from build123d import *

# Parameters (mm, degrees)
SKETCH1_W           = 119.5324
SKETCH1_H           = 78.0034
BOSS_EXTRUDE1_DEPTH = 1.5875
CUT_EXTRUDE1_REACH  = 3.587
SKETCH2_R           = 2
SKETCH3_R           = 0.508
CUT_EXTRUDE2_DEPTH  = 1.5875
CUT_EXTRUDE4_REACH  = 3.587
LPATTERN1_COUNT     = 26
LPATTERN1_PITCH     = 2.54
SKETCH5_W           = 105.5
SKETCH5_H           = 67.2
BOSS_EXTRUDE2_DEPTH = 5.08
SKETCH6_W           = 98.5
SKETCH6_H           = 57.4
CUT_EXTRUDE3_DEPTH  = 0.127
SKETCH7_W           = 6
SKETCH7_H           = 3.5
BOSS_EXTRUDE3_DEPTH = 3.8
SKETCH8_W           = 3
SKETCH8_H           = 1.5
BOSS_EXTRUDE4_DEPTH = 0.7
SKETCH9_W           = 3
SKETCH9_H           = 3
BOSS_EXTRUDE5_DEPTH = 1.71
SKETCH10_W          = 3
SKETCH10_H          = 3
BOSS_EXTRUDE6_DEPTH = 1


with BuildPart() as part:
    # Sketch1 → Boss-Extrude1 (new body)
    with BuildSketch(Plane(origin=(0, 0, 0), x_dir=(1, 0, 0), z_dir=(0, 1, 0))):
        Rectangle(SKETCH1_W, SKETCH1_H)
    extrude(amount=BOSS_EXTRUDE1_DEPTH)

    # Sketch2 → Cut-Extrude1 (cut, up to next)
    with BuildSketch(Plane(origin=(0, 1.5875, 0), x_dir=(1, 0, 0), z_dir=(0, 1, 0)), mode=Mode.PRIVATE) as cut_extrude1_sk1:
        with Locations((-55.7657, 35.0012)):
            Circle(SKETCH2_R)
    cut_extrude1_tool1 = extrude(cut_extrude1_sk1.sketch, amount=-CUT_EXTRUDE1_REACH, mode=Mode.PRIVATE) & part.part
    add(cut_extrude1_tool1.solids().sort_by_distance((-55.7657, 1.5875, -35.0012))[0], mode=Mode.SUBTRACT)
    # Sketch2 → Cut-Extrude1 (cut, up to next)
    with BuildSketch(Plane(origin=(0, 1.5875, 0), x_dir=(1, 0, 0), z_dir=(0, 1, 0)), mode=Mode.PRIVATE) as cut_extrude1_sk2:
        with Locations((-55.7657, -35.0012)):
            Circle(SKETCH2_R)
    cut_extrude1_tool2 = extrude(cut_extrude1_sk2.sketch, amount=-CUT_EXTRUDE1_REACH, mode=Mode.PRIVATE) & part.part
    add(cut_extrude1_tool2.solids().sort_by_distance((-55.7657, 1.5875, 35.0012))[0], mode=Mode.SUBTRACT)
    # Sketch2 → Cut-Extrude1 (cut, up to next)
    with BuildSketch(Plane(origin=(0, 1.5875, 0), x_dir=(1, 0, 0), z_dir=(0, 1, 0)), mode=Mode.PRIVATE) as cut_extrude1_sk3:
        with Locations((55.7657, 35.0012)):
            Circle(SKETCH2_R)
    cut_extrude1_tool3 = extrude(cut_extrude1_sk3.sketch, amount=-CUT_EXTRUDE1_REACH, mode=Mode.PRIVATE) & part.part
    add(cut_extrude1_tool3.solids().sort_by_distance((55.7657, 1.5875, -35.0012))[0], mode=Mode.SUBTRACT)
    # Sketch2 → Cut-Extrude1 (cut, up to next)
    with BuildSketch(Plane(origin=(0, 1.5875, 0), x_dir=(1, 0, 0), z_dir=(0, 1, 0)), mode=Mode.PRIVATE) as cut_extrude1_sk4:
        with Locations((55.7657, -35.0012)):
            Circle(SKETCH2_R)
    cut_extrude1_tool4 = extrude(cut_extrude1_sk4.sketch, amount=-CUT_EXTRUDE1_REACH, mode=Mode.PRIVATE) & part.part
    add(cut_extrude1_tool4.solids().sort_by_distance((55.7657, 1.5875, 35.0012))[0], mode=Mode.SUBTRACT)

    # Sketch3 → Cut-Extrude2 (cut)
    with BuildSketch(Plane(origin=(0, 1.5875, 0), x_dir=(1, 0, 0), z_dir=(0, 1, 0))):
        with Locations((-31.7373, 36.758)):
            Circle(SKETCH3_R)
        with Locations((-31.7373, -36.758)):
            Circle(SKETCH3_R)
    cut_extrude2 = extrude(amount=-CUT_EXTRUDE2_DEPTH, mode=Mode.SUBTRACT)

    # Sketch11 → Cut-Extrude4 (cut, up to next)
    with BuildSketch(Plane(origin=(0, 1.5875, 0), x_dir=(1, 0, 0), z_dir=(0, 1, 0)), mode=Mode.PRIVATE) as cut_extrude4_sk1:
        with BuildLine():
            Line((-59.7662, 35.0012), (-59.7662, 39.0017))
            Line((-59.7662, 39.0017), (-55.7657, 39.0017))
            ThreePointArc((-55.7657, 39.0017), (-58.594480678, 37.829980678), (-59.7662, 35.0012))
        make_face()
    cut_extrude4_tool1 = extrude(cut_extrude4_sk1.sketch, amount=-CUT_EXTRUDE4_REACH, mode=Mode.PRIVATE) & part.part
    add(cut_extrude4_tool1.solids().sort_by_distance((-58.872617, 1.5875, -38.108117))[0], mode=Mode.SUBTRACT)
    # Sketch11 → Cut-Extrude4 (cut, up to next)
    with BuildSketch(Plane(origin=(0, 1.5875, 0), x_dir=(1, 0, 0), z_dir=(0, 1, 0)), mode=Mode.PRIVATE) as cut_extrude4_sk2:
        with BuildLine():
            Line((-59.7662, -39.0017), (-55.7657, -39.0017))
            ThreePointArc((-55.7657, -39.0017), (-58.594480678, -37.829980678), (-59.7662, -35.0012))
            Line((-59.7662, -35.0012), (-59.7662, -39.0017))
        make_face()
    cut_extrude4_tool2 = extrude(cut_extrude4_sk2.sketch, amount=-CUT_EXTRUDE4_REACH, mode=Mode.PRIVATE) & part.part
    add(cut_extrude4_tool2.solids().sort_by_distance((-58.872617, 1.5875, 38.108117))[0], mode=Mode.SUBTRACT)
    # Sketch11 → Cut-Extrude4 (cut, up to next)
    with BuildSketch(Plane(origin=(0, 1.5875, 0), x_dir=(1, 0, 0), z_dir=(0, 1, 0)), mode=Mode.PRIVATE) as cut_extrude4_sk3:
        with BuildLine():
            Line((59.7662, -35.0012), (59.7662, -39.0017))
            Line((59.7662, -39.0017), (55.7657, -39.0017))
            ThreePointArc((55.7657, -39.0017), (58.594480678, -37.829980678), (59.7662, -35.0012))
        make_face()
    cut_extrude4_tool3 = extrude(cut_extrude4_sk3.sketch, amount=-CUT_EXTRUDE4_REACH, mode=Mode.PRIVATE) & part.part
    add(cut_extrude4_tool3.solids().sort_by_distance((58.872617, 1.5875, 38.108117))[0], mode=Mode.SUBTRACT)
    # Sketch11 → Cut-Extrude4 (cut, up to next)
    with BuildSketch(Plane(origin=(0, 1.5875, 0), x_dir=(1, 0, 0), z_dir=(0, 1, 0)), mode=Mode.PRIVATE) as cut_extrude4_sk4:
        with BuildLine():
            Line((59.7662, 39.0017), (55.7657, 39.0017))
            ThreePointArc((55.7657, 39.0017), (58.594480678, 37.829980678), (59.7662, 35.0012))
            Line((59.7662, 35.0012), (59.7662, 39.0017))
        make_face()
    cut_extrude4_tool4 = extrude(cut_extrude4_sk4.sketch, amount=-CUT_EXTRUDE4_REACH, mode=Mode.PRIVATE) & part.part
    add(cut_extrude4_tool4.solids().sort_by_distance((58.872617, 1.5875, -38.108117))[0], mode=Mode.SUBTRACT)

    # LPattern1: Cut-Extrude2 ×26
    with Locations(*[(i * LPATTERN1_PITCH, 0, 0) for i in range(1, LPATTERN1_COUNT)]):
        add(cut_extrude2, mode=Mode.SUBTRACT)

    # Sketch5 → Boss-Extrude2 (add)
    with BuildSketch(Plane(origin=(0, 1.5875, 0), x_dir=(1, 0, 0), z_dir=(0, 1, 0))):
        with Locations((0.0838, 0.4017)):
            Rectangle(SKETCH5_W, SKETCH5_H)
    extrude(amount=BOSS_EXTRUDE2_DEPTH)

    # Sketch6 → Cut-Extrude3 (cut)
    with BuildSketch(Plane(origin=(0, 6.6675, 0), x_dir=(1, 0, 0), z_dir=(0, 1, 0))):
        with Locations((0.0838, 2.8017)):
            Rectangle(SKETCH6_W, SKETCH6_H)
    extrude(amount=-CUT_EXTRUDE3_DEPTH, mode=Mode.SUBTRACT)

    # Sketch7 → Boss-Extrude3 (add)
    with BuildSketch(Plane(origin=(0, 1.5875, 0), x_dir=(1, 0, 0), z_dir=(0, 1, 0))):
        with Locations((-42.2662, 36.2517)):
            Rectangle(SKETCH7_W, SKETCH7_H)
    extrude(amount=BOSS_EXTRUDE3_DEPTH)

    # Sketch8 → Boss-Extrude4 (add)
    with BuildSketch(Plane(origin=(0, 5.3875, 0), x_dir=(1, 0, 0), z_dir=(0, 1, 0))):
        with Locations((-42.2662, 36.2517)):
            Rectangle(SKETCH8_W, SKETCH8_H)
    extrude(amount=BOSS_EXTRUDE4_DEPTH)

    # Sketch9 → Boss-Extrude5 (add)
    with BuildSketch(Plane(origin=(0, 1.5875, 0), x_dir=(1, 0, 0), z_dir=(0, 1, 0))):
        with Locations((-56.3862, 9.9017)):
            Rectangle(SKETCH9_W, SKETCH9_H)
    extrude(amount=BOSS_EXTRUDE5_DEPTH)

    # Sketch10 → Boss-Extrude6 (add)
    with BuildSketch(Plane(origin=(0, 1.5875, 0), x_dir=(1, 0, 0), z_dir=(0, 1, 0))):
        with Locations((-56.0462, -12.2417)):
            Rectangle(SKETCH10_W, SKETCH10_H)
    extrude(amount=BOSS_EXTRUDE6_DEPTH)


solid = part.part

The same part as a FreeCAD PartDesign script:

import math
import FreeCAD as App
import Part
import Sketcher


def add_polygon(sketch, points):
    """Adds a closed chain of lines whose ends are joined by coincident constraints."""
    first, n = sketch.GeometryCount, len(points)
    for a, b in zip(points, points[1:] + points[:1]):
        sketch.addGeometry(Part.LineSegment(App.Vector(*a, 0), App.Vector(*b, 0)), False)
    for i in range(n):
        sketch.addConstraint(Sketcher.Constraint("Coincident", first + i, 2, first + (i + 1) % n, 1))

doc = App.newDocument("Part")
body = doc.addObject("PartDesign::Body", "Body")

# Sketch on XZ plane
sketch1 = body.newObject("Sketcher::SketchObject", "Sketch")
sketch1.AttachmentSupport = (doc.getObject("XZ_Plane"), [""])
sketch1.MapMode = "FlatFace"
add_polygon(sketch1, [(-60, -39), (-60, 39), (60, 39), (60, -39)])  # lines 0-3
sketch1.addConstraint([
    Sketcher.Constraint("Vertical", 0),
    Sketcher.Constraint("Horizontal", 1),
    Sketcher.Constraint("Vertical", 2),
    Sketcher.Constraint("Horizontal", 3),
    Sketcher.Constraint("Symmetric", 0, 2, 2, 2, -1, 1),
    Sketcher.Constraint("DistanceX", 1, 1, 1, 2, 119.5324),
    Sketcher.Constraint("DistanceY", 0, 1, 0, 2, 78.0034),
])
pad1 = body.newObject("PartDesign::Pad", "Pad")
pad1.Profile = sketch1
pad1.Length = 1.5875
pad1.Reversed = True

# Sketch on XZ plane
sketch2 = body.newObject("Sketcher::SketchObject", "Sketch001")
sketch2.AttachmentSupport = (doc.getObject("XZ_Plane"), [""])
sketch2.MapMode = "FlatFace"
sketch2.AttachmentOffset = App.Placement(App.Vector(0, 0, -1.5875), App.Rotation())
sketch2.addGeometry(Part.Circle(App.Vector(-55.8, -35, 0), App.Vector(0, 0, 1), 2), False)
sketch2.addConstraint([
    Sketcher.Constraint("Diameter", 0, 4.0),
    Sketcher.Constraint("DistanceX", 0, 3, -1, 1, 55.7657),
    Sketcher.Constraint("DistanceY", 0, 3, -1, 1, 35.0012),
])
pocket1 = body.newObject("PartDesign::Pocket", "Pocket")
pocket1.Profile = sketch2
pocket1.Type = "UpToFirst"
pocket1.Reversed = True

# Sketch on XZ plane
sketch3 = body.newObject("Sketcher::SketchObject", "Sketch002")
sketch3.AttachmentSupport = (doc.getObject("XZ_Plane"), [""])
sketch3.MapMode = "FlatFace"
sketch3.AttachmentOffset = App.Placement(App.Vector(0, 0, -1.5875), App.Rotation())
sketch3.addGeometry(Part.Circle(App.Vector(-55.8, 35, 0), App.Vector(0, 0, 1), 2), False)
sketch3.addConstraint([
    Sketcher.Constraint("Diameter", 0, 4.0),
    Sketcher.Constraint("DistanceX", 0, 3, -1, 1, 55.7657),
    Sketcher.Constraint("DistanceY", -1, 1, 0, 3, 35.0012),
])
pocket2 = body.newObject("PartDesign::Pocket", "Pocket001")
pocket2.Profile = sketch3
pocket2.Type = "UpToFirst"
pocket2.Reversed = True

# Sketch on XZ plane
sketch4 = body.newObject("Sketcher::SketchObject", "Sketch003")
sketch4.AttachmentSupport = (doc.getObject("XZ_Plane"), [""])
sketch4.MapMode = "FlatFace"
sketch4.AttachmentOffset = App.Placement(App.Vector(0, 0, -1.5875), App.Rotation())
sketch4.addGeometry(Part.Circle(App.Vector(55.8, -35, 0), App.Vector(0, 0, 1), 2), False)
sketch4.addConstraint([
    Sketcher.Constraint("Diameter", 0, 4.0),
    Sketcher.Constraint("DistanceX", -1, 1, 0, 3, 55.7657),
    Sketcher.Constraint("DistanceY", 0, 3, -1, 1, 35.0012),
])
pocket3 = body.newObject("PartDesign::Pocket", "Pocket002")
pocket3.Profile = sketch4
pocket3.Type = "UpToFirst"
pocket3.Reversed = True

# Sketch on XZ plane
sketch5 = body.newObject("Sketcher::SketchObject", "Sketch004")
sketch5.AttachmentSupport = (doc.getObject("XZ_Plane"), [""])
sketch5.MapMode = "FlatFace"
sketch5.AttachmentOffset = App.Placement(App.Vector(0, 0, -1.5875), App.Rotation())
sketch5.addGeometry(Part.Circle(App.Vector(55.8, 35, 0), App.Vector(0, 0, 1), 2), False)
sketch5.addConstraint([
    Sketcher.Constraint("Diameter", 0, 4.0),
    Sketcher.Constraint("DistanceX", -1, 1, 0, 3, 55.7657),
    Sketcher.Constraint("DistanceY", -1, 1, 0, 3, 35.0012),
])
pocket4 = body.newObject("PartDesign::Pocket", "Pocket003")
pocket4.Profile = sketch5
pocket4.Type = "UpToFirst"
pocket4.Reversed = True

# Sketch on XZ plane
sketch6 = body.newObject("Sketcher::SketchObject", "Sketch005")
sketch6.AttachmentSupport = (doc.getObject("XZ_Plane"), [""])
sketch6.MapMode = "FlatFace"
sketch6.AttachmentOffset = App.Placement(App.Vector(0, 0, -1.5875), App.Rotation())
sketch6.addGeometry([
    Part.Circle(App.Vector(-31.7, -36.8, 0), App.Vector(0, 0, 1), 0.5),
    Part.Circle(App.Vector(-31.7, 36.8, 0), App.Vector(0, 0, 1), 0.5),
], False)
sketch6.addConstraint([
    Sketcher.Constraint("Equal", 0, 1),
    Sketcher.Constraint("Symmetric", 0, 3, 1, 3, -1),
    Sketcher.Constraint("Diameter", 0, 1.016),
    Sketcher.Constraint("DistanceY", 0, 3, -1, 1, 36.758),
    Sketcher.Constraint("DistanceX", 0, 3, -1, 1, 31.7373),
])
pocket5 = body.newObject("PartDesign::Pocket", "Pocket004")
pocket5.Profile = sketch6
pocket5.Length = 1.5875
pocket5.Reversed = True

# Sketch on XZ plane
sketch7 = body.newObject("Sketcher::SketchObject", "Sketch006")
sketch7.AttachmentSupport = (doc.getObject("XZ_Plane"), [""])
sketch7.MapMode = "FlatFace"
sketch7.AttachmentOffset = App.Placement(App.Vector(0, 0, -1.5875), App.Rotation())
sketch7.addGeometry([
    Part.LineSegment(App.Vector(-59.8, -39, 0), App.Vector(-59.8, -35, 0)),
    Part.ArcOfCircle(Part.Circle(App.Vector(-55.8, -35, 0), App.Vector(0, 0, 1), 4), math.radians(180), math.radians(270)),
    Part.LineSegment(App.Vector(-55.8, -39, 0), App.Vector(-59.8, -39, 0)),
], False)
sketch7.addConstraint([
    Sketcher.Constraint("Tangent", 0, 2, 1, 1),
    Sketcher.Constraint("Tangent", 1, 2, 2, 1),
    Sketcher.Constraint("Coincident", 2, 2, 0, 1),
    Sketcher.Constraint("Vertical", 0),
    Sketcher.Constraint("Horizontal", 2),
    Sketcher.Constraint("Radius", 1, 4.0005),
    Sketcher.Constraint("DistanceX", 1, 3, -1, 1, 55.7657),
    Sketcher.Constraint("DistanceY", 1, 3, -1, 1, 35.0012),
])
pocket6 = body.newObject("PartDesign::Pocket", "Pocket005")
pocket6.Profile = sketch7
pocket6.Type = "UpToFirst"
pocket6.Reversed = True

# Sketch on XZ plane
sketch8 = body.newObject("Sketcher::SketchObject", "Sketch007")
sketch8.AttachmentSupport = (doc.getObject("XZ_Plane"), [""])
sketch8.MapMode = "FlatFace"
sketch8.AttachmentOffset = App.Placement(App.Vector(0, 0, -1.5875), App.Rotation())
sketch8.addGeometry([
    Part.LineSegment(App.Vector(-59.8, 39, 0), App.Vector(-55.8, 39, 0)),
    Part.ArcOfCircle(Part.Circle(App.Vector(-55.8, 35, 0), App.Vector(0, 0, 1), 4), math.radians(90), math.radians(180)),
    Part.LineSegment(App.Vector(-59.8, 35, 0), App.Vector(-59.8, 39, 0)),
], False)
sketch8.addConstraint([
    Sketcher.Constraint("Tangent", 0, 2, 1, 1),
    Sketcher.Constraint("Tangent", 1, 2, 2, 1),
    Sketcher.Constraint("Coincident", 2, 2, 0, 1),
    Sketcher.Constraint("Horizontal", 0),
    Sketcher.Constraint("Vertical", 2),
    Sketcher.Constraint("Radius", 1, 4.0005),
    Sketcher.Constraint("DistanceX", 1, 3, -1, 1, 55.7657),
    Sketcher.Constraint("DistanceY", -1, 1, 1, 3, 35.0012),
])
pocket7 = body.newObject("PartDesign::Pocket", "Pocket006")
pocket7.Profile = sketch8
pocket7.Type = "UpToFirst"
pocket7.Reversed = True

# Sketch on XZ plane
sketch9 = body.newObject("Sketcher::SketchObject", "Sketch008")
sketch9.AttachmentSupport = (doc.getObject("XZ_Plane"), [""])
sketch9.MapMode = "FlatFace"
sketch9.AttachmentOffset = App.Placement(App.Vector(0, 0, -1.5875), App.Rotation())
sketch9.addGeometry([
    Part.LineSegment(App.Vector(59.8, 39, 0), App.Vector(59.8, 35, 0)),
    Part.ArcOfCircle(Part.Circle(App.Vector(55.8, 35, 0), App.Vector(0, 0, 1), 4), math.radians(0), math.radians(90)),
    Part.LineSegment(App.Vector(55.8, 39, 0), App.Vector(59.8, 39, 0)),
], False)
sketch9.addConstraint([
    Sketcher.Constraint("Tangent", 0, 2, 1, 1),
    Sketcher.Constraint("Tangent", 1, 2, 2, 1),
    Sketcher.Constraint("Coincident", 2, 2, 0, 1),
    Sketcher.Constraint("Vertical", 0),
    Sketcher.Constraint("Horizontal", 2),
    Sketcher.Constraint("Radius", 1, 4.0005),
    Sketcher.Constraint("DistanceX", -1, 1, 1, 3, 55.7657),
    Sketcher.Constraint("DistanceY", -1, 1, 1, 3, 35.0012),
])
pocket8 = body.newObject("PartDesign::Pocket", "Pocket007")
pocket8.Profile = sketch9
pocket8.Type = "UpToFirst"
pocket8.Reversed = True

# Sketch on XZ plane
sketch10 = body.newObject("Sketcher::SketchObject", "Sketch009")
sketch10.AttachmentSupport = (doc.getObject("XZ_Plane"), [""])
sketch10.MapMode = "FlatFace"
sketch10.AttachmentOffset = App.Placement(App.Vector(0, 0, -1.5875), App.Rotation())
sketch10.addGeometry([
    Part.LineSegment(App.Vector(59.8, -39, 0), App.Vector(55.8, -39, 0)),
    Part.ArcOfCircle(Part.Circle(App.Vector(55.8, -35, 0), App.Vector(0, 0, 1), 4), math.radians(-90), math.radians(0)),
    Part.LineSegment(App.Vector(59.8, -35, 0), App.Vector(59.8, -39, 0)),
], False)
sketch10.addConstraint([
    Sketcher.Constraint("Tangent", 0, 2, 1, 1),
    Sketcher.Constraint("Tangent", 1, 2, 2, 1),
    Sketcher.Constraint("Coincident", 2, 2, 0, 1),
    Sketcher.Constraint("Horizontal", 0),
    Sketcher.Constraint("Vertical", 2),
    Sketcher.Constraint("Radius", 1, 4.0005),
    Sketcher.Constraint("DistanceX", -1, 1, 1, 3, 55.7657),
    Sketcher.Constraint("DistanceY", 1, 3, -1, 1, 35.0012),
])
pocket9 = body.newObject("PartDesign::Pocket", "Pocket008")
pocket9.Profile = sketch10
pocket9.Type = "UpToFirst"
pocket9.Reversed = True
doc.recompute()

linearpattern = body.newObject("PartDesign::LinearPattern", "LinearPattern")
linearpattern.Originals = [pocket5]
linearpattern.Direction = (doc.getObject("X_Axis"), [""])
linearpattern.Mode = "offset"
linearpattern.Offset = 2.54
linearpattern.Occurrences = 26
body.Tip = linearpattern

# Sketch on XZ plane
sketch11 = body.newObject("Sketcher::SketchObject", "Sketch010")
sketch11.AttachmentSupport = (doc.getObject("XZ_Plane"), [""])
sketch11.MapMode = "FlatFace"
sketch11.AttachmentOffset = App.Placement(App.Vector(0, 0, -1.5875), App.Rotation())
add_polygon(sketch11, [(-53, -34), (-53, 33), (53, 33), (53, -34)])  # lines 0-3
sketch11.addConstraint([
    Sketcher.Constraint("Vertical", 0),
    Sketcher.Constraint("Horizontal", 1),
    Sketcher.Constraint("Vertical", 2),
    Sketcher.Constraint("Horizontal", 3),
    Sketcher.Constraint("DistanceX", 1, 1, 1, 2, 105.5),
    Sketcher.Constraint("DistanceY", 0, 1, 0, 2, 67.2),
    Sketcher.Constraint("DistanceX", 0, 2, -1, 1, 52.6662),
    Sketcher.Constraint("DistanceY", -1, 1, 0, 2, 33.1983),
])
pad2 = body.newObject("PartDesign::Pad", "Pad001")
pad2.Profile = sketch11
pad2.Length = 5.08
pad2.Reversed = True

# Sketch on XZ plane
sketch12 = body.newObject("Sketcher::SketchObject", "Sketch011")
sketch12.AttachmentSupport = (doc.getObject("XZ_Plane"), [""])
sketch12.MapMode = "FlatFace"
sketch12.AttachmentOffset = App.Placement(App.Vector(0, 0, -6.6675), App.Rotation())
add_polygon(sketch12, [(-49, -32), (-49, 26), (49, 26), (49, -32)])  # lines 0-3
sketch12.addConstraint([
    Sketcher.Constraint("Vertical", 0),
    Sketcher.Constraint("Horizontal", 1),
    Sketcher.Constraint("Vertical", 2),
    Sketcher.Constraint("Horizontal", 3),
    Sketcher.Constraint("DistanceX", 1, 1, 1, 2, 98.5),
    Sketcher.Constraint("DistanceY", 0, 1, 0, 2, 57.4),
    Sketcher.Constraint("DistanceX", 0, 2, -1, 1, 49.1662),
    Sketcher.Constraint("DistanceY", -1, 1, 0, 2, 25.8983),
])
pocket10 = body.newObject("PartDesign::Pocket", "Pocket009")
pocket10.Profile = sketch12
pocket10.Length = 0.127
pocket10.Reversed = True

# Sketch on XZ plane
sketch13 = body.newObject("Sketcher::SketchObject", "Sketch012")
sketch13.AttachmentSupport = (doc.getObject("XZ_Plane"), [""])
sketch13.MapMode = "FlatFace"
sketch13.AttachmentOffset = App.Placement(App.Vector(0, 0, -1.5875), App.Rotation())
add_polygon(sketch13, [(-45.3, -38), (-45.3, -34.5), (-39.3, -34.5), (-39.3, -38)])  # lines 0-3
sketch13.addConstraint([
    Sketcher.Constraint("Vertical", 0),
    Sketcher.Constraint("Horizontal", 1),
    Sketcher.Constraint("Vertical", 2),
    Sketcher.Constraint("Horizontal", 3),
    Sketcher.Constraint("DistanceX", 1, 1, 1, 2, 6.0),
    Sketcher.Constraint("DistanceY", 0, 1, 0, 2, 3.5),
    Sketcher.Constraint("DistanceX", 0, 2, -1, 1, 45.2662),
    Sketcher.Constraint("DistanceY", 0, 2, -1, 1, 34.5017),
])
pad3 = body.newObject("PartDesign::Pad", "Pad002")
pad3.Profile = sketch13
pad3.Length = 3.8
pad3.Reversed = True

# Sketch on XZ plane
sketch14 = body.newObject("Sketcher::SketchObject", "Sketch013")
sketch14.AttachmentSupport = (doc.getObject("XZ_Plane"), [""])
sketch14.MapMode = "FlatFace"
sketch14.AttachmentOffset = App.Placement(App.Vector(0, 0, -5.3875), App.Rotation())
add_polygon(sketch14, [(-43.8, -37), (-43.8, -35.5), (-40.8, -35.5), (-40.8, -37)])  # lines 0-3
sketch14.addConstraint([
    Sketcher.Constraint("Vertical", 0),
    Sketcher.Constraint("Horizontal", 1),
    Sketcher.Constraint("Vertical", 2),
    Sketcher.Constraint("Horizontal", 3),
    Sketcher.Constraint("DistanceX", 1, 1, 1, 2, 3.0),
    Sketcher.Constraint("DistanceY", 0, 1, 0, 2, 1.5),
    Sketcher.Constraint("DistanceX", 0, 2, -1, 1, 43.7662),
    Sketcher.Constraint("DistanceY", 0, 2, -1, 1, 35.5017),
])
pad4 = body.newObject("PartDesign::Pad", "Pad003")
pad4.Profile = sketch14
pad4.Length = 0.7
pad4.Reversed = True

# Sketch on XZ plane
sketch15 = body.newObject("Sketcher::SketchObject", "Sketch014")
sketch15.AttachmentSupport = (doc.getObject("XZ_Plane"), [""])
sketch15.MapMode = "FlatFace"
sketch15.AttachmentOffset = App.Placement(App.Vector(0, 0, -1.5875), App.Rotation())
add_polygon(sketch15, [(-57.9, -11.4), (-57.9, -8.4), (-54.9, -8.4), (-54.9, -11.4)])  # lines 0-3
sketch15.addConstraint([
    Sketcher.Constraint("Vertical", 0),
    Sketcher.Constraint("Horizontal", 1),
    Sketcher.Constraint("Vertical", 2),
    Sketcher.Constraint("Horizontal", 3),
    Sketcher.Constraint("Equal", 3, 0),
    Sketcher.Constraint("DistanceX", 1, 1, 1, 2, 3.0),
    Sketcher.Constraint("DistanceX", 0, 2, -1, 1, 57.8862),
    Sketcher.Constraint("DistanceY", 0, 2, -1, 1, 8.4017),
])
pad5 = body.newObject("PartDesign::Pad", "Pad004")
pad5.Profile = sketch15
pad5.Length = 1.71
pad5.Reversed = True

# Sketch on XZ plane
sketch16 = body.newObject("Sketcher::SketchObject", "Sketch015")
sketch16.AttachmentSupport = (doc.getObject("XZ_Plane"), [""])
sketch16.MapMode = "FlatFace"
sketch16.AttachmentOffset = App.Placement(App.Vector(0, 0, -1.5875), App.Rotation())
add_polygon(sketch16, [(-57.5, 10.7), (-57.5, 13.7), (-54.5, 13.7), (-54.5, 10.7)])  # lines 0-3
sketch16.addConstraint([
    Sketcher.Constraint("Vertical", 0),
    Sketcher.Constraint("Horizontal", 1),
    Sketcher.Constraint("Vertical", 2),
    Sketcher.Constraint("Horizontal", 3),
    Sketcher.Constraint("Equal", 3, 0),
    Sketcher.Constraint("DistanceX", 1, 1, 1, 2, 3.0),
    Sketcher.Constraint("DistanceX", 0, 2, -1, 1, 57.5462),
    Sketcher.Constraint("DistanceY", -1, 1, 0, 2, 13.7417),
])
pad6 = body.newObject("PartDesign::Pad", "Pad005")
pad6.Profile = sketch16
pad6.Length = 1
pad6.Reversed = True

doc.recompute()
